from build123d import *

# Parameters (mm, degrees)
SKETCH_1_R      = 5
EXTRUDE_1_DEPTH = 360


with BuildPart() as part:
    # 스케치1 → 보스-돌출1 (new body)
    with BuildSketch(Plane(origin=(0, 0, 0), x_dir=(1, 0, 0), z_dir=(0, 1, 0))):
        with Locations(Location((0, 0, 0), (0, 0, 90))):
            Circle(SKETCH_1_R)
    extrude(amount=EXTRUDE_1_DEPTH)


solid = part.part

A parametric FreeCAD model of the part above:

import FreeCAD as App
import Part
import Sketcher
from FreeCAD import Vector

doc = App.newDocument("Part")
params = doc.addObject("Spreadsheet::Sheet", "Params")
for row, (alias, value) in enumerate([
    ("sketch1_diameter", "10 mm"),
    ("pad1_length", "360 mm"),
], start=1):
    params.set(f"A{row}", alias)
    params.set(f"B{row}", "=" + value)
    params.setAlias(f"B{row}", alias)

body = doc.addObject("PartDesign::Body", "Body")

# Sketch on XZ plane
sketch1 = doc.addObject("Sketcher::SketchObject", "Sketch")
body.addObject(sketch1)
sketch1.AttachmentSupport = (doc.XZ_Plane, [""])
sketch1.MapMode = "FlatFace"
sketch1.addGeometry(Part.Circle(Vector(0, 0, 0), Vector(0, 0, 1), 5), False)
sketch1.addConstraint([
    Sketcher.Constraint("Coincident", 0, 3, -1, 1),
    Sketcher.Constraint("Diameter", 0, 10.0),
])
sketch1.setExpression("Constraints[1]", "Params.sketch1_diameter")
pad1 = doc.addObject("PartDesign::Pad", "Pad")
body.addObject(pad1)
pad1.Profile = sketch1
pad1.setExpression("Length", "Params.pad1_length")
pad1.Reversed = True

doc.recompute()
